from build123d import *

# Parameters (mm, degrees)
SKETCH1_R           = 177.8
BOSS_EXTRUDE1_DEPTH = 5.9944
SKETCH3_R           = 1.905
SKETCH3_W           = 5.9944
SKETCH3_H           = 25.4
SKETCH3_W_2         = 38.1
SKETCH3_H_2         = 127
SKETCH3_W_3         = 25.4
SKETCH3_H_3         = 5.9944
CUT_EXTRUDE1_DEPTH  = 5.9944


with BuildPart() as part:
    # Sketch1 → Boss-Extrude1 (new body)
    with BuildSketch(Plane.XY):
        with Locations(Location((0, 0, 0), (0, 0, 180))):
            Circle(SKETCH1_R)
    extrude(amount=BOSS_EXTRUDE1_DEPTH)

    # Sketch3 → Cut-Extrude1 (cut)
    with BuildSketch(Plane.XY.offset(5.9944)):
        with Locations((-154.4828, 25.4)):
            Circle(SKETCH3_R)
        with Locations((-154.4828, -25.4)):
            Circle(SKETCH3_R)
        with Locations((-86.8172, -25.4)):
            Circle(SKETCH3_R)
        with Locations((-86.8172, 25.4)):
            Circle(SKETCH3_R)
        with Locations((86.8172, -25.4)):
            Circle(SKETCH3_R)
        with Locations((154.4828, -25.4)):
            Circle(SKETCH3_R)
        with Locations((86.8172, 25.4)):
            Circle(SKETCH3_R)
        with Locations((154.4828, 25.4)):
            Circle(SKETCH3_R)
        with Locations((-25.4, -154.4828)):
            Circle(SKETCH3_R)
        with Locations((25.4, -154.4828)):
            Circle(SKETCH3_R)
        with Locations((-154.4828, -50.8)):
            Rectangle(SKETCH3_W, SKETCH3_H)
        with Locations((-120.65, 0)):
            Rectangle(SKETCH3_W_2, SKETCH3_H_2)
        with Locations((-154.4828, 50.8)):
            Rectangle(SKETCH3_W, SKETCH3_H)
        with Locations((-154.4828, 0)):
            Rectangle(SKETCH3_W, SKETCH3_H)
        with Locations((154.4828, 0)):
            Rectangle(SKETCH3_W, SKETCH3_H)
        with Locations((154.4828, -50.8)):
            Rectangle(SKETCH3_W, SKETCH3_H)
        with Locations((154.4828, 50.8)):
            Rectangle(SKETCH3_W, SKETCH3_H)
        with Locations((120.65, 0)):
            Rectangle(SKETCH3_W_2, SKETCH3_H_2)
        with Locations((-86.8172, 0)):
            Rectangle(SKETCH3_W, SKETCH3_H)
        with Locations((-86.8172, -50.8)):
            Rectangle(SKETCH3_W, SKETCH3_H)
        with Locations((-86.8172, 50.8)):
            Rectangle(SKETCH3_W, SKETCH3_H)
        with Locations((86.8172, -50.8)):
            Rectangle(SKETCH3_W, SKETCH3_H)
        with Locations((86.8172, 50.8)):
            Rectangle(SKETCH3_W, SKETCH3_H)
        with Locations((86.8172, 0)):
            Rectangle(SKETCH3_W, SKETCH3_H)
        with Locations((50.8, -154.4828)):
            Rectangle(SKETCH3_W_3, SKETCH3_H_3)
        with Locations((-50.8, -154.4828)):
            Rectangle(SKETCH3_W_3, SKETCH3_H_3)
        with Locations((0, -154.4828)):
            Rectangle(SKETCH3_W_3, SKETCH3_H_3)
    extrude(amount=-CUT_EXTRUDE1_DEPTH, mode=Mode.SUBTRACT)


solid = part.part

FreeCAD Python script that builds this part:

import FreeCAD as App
import Part
import Sketcher

V = App.Vector
Q = App.Units.Quantity

doc = App.newDocument("Part")
body = doc.addObject("PartDesign::Body", "Body")

# Sketch on XY plane
sketch1 = doc.addObject("Sketcher::SketchObject", "Sketch")
body.addObject(sketch1)
sketch1.AttachmentSupport = (doc.XY_Plane, [""])
sketch1.MapMode = "FlatFace"
sketch1.addGeometry(Part.Circle(V(0, 0, 0), V(0, 0, 1), 177.8), False)
sketch1.addConstraint([
    Sketcher.Constraint("Coincident", 0, 3, -1, 1),
    Sketcher.Constraint("Diameter", 0, Q("14 in")),
])
pad1 = doc.addObject("PartDesign::Pad", "Pad")
body.addObject(pad1)
pad1.Profile = sketch1
pad1.Length = Q("0.236 in")

# Sketch on XY plane
sketch2 = doc.addObject("Sketcher::SketchObject", "Sketch001")
body.addObject(sketch2)
sketch2.AttachmentSupport = (doc.XY_Plane, [""])
sketch2.MapMode = "FlatFace"
sketch2.AttachmentOffset = App.Placement(V(0, 0, 0.236 * 25.4), App.Rotation())
sketch2.addGeometry([
    Part.Circle(V(-154.4828, 25.4, 0), V(0, 0, 1), 1.905),  # 0
    Part.Circle(V(-154.4828, -25.4, 0), V(0, 0, 1), 1.905),  # 1
    Part.Circle(V(-86.8172, -25.4, 0), V(0, 0, 1), 1.905),  # 2
    Part.Circle(V(-86.8172, 25.4, 0), V(0, 0, 1), 1.905),  # 3
    Part.Circle(V(86.8172, -25.4, 0), V(0, 0, 1), 1.905),  # 4
    Part.Circle(V(154.4828, -25.4, 0), V(0, 0, 1), 1.905),  # 5
    Part.Circle(V(86.8172, 25.4, 0), V(0, 0, 1), 1.905),  # 6
    Part.Circle(V(154.4828, 25.4, 0), V(0, 0, 1), 1.905),  # 7
    Part.Circle(V(-25.4, -154.4828, 0), V(0, 0, 1), 1.905),  # 8
    Part.Circle(V(25.4, -154.4828, 0), V(0, 0, 1), 1.905),  # 9
    Part.LineSegment(V(-157.48, -38.1, 0), V(-157.48, -63.5, 0)),  # 10
    Part.LineSegment(V(-157.48, -63.5, 0), V(-151.4856, -63.5, 0)),  # 11
    Part.LineSegment(V(-151.4856, -63.5, 0), V(-151.4856, -38.1, 0)),  # 12
    Part.LineSegment(V(-151.4856, -38.1, 0), V(-157.48, -38.1, 0)),  # 13
    Part.LineSegment(V(-139.7, 63.5, 0), V(-139.7, -63.5, 0)),  # 14
    Part.LineSegment(V(-139.7, -63.5, 0), V(-101.6, -63.5, 0)),  # 15
    Part.LineSegment(V(-101.6, -63.5, 0), V(-101.6, 63.5, 0)),  # 16
    Part.LineSegment(V(-101.6, 63.5, 0), V(-139.7, 63.5, 0)),  # 17
    Part.LineSegment(V(-157.48, 63.5, 0), V(-157.48, 38.1, 0)),  # 18
    Part.LineSegment(V(-157.48, 38.1, 0), V(-151.4856, 38.1, 0)),  # 19
    Part.LineSegment(V(-151.4856, 38.1, 0), V(-151.4856, 63.5, 0)),  # 20
    Part.LineSegment(V(-151.4856, 63.5, 0), V(-157.48, 63.5, 0)),  # 21
    Part.LineSegment(V(-157.48, 12.7, 0), V(-157.48, -12.7, 0)),  # 22
    Part.LineSegment(V(-157.48, -12.7, 0), V(-151.4856, -12.7, 0)),  # 23
    Part.LineSegment(V(-151.4856, -12.7, 0), V(-151.4856, 12.7, 0)),  # 24
    Part.LineSegment(V(-151.4856, 12.7, 0), V(-157.48, 12.7, 0)),  # 25
    Part.LineSegment(V(151.4856, 12.7, 0), V(151.4856, -12.7, 0)),  # 26
    Part.LineSegment(V(151.4856, -12.7, 0), V(157.48, -12.7, 0)),  # 27
    Part.LineSegment(V(157.48, -12.7, 0), V(157.48, 12.7, 0)),  # 28
    Part.LineSegment(V(157.48, 12.7, 0), V(151.4856, 12.7, 0)),  # 29
    Part.LineSegment(V(151.4856, -38.1, 0), V(151.4856, -63.5, 0)),  # 30
    Part.LineSegment(V(151.4856, -63.5, 0), V(157.48, -63.5, 0)),  # 31
    Part.LineSegment(V(157.48, -63.5, 0), V(157.48, -38.1, 0)),  # 32
    Part.LineSegment(V(157.48, -38.1, 0), V(151.4856, -38.1, 0)),  # 33
    Part.LineSegment(V(151.4856, 63.5, 0), V(151.4856, 38.1, 0)),  # 34
    Part.LineSegment(V(151.4856, 38.1, 0), V(157.48, 38.1, 0)),  # 35
    Part.LineSegment(V(157.48, 38.1, 0), V(157.48, 63.5, 0)),  # 36
    Part.LineSegment(V(157.48, 63.5, 0), V(151.4856, 63.5, 0)),  # 37
    Part.LineSegment(V(101.6, 63.5, 0), V(101.6, -63.5, 0)),  # 38
    Part.LineSegment(V(101.6, -63.5, 0), V(139.7, -63.5, 0)),  # 39
    Part.LineSegment(V(139.7, -63.5, 0), V(139.7, 63.5, 0)),  # 40
    Part.LineSegment(V(139.7, 63.5, 0), V(101.6, 63.5, 0)),  # 41
    Part.LineSegment(V(-89.8144, 12.7, 0), V(-89.8144, -12.7, 0)),  # 42
    Part.LineSegment(V(-89.8144, -12.7, 0), V(-83.82, -12.7, 0)),  # 43
    Part.LineSegment(V(-83.82, -12.7, 0), V(-83.82, 12.7, 0)),  # 44
    Part.LineSegment(V(-83.82, 12.7, 0), V(-89.8144, 12.7, 0)),  # 45
    Part.LineSegment(V(-89.8144, -38.1, 0), V(-89.8144, -63.5, 0)),  # 46
    Part.LineSegment(V(-89.8144, -63.5, 0), V(-83.82, -63.5, 0)),  # 47
    Part.LineSegment(V(-83.82, -63.5, 0), V(-83.82, -38.1, 0)),  # 48
    Part.LineSegment(V(-83.82, -38.1, 0), V(-89.8144, -38.1, 0)),  # 49
    Part.LineSegment(V(-89.8144, 63.5, 0), V(-89.8144, 38.1, 0)),  # 50
    Part.LineSegment(V(-89.8144, 38.1, 0), V(-83.82, 38.1, 0)),  # 51
    Part.LineSegment(V(-83.82, 38.1, 0), V(-83.82, 63.5, 0)),  # 52
    Part.LineSegment(V(-83.82, 63.5, 0), V(-89.8144, 63.5, 0)),  # 53
    Part.LineSegment(V(83.82, -38.1, 0), V(83.82, -63.5, 0)),  # 54
    Part.LineSegment(V(83.82, -63.5, 0), V(89.8144, -63.5, 0)),  # 55
    Part.LineSegment(V(89.8144, -63.5, 0), V(89.8144, -38.1, 0)),  # 56
    Part.LineSegment(V(89.8144, -38.1, 0), V(83.82, -38.1, 0)),  # 57
    Part.LineSegment(V(83.82, 63.5, 0), V(83.82, 38.1, 0)),  # 58
    Part.LineSegment(V(83.82, 38.1, 0), V(89.8144, 38.1, 0)),  # 59
    Part.LineSegment(V(89.8144, 38.1, 0), V(89.8144, 63.5, 0)),  # 60
    Part.LineSegment(V(89.8144, 63.5, 0), V(83.82, 63.5, 0)),  # 61
    Part.LineSegment(V(83.82, 12.7, 0), V(83.82, -12.7, 0)),  # 62
    Part.LineSegment(V(83.82, -12.7, 0), V(89.8144, -12.7, 0)),  # 63
    Part.LineSegment(V(89.8144, -12.7, 0), V(89.8144, 12.7, 0)),  # 64
    Part.LineSegment(V(89.8144, 12.7, 0), V(83.82, 12.7, 0)),  # 65
    Part.LineSegment(V(38.1, -151.4856, 0), V(38.1, -157.48, 0)),  # 66
    Part.LineSegment(V(38.1, -157.48, 0), V(63.5, -157.48, 0)),  # 67
    Part.LineSegment(V(63.5, -157.48, 0), V(63.5, -151.4856, 0)),  # 68
    Part.LineSegment(V(63.5, -151.4856, 0), V(38.1, -151.4856, 0)),  # 69
    Part.LineSegment(V(-63.5, -151.4856, 0), V(-63.5, -157.48, 0)),  # 70
    Part.LineSegment(V(-63.5, -157.48, 0), V(-38.1, -157.48, 0)),  # 71
    Part.LineSegment(V(-38.1, -157.48, 0), V(-38.1, -151.4856, 0)),  # 72
    Part.LineSegment(V(-38.1, -151.4856, 0), V(-63.5, -151.4856, 0)),  # 73
    Part.LineSegment(V(-12.7, -151.4856, 0), V(-12.7, -157.48, 0)),  # 74
    Part.LineSegment(V(-12.7, -157.48, 0), V(12.7, -157.48, 0)),  # 75
    Part.LineSegment(V(12.7, -157.48, 0), V(12.7, -151.4856, 0)),  # 76
    Part.LineSegment(V(12.7, -151.4856, 0), V(-12.7, -151.4856, 0)),  # 77
], False)
sketch2.addConstraint([
    Sketcher.Constraint("Coincident", 10, 2, 11, 1),
    Sketcher.Constraint("Coincident", 11, 2, 12, 1),
    Sketcher.Constraint("Coincident", 12, 2, 13, 1),
    Sketcher.Constraint("Coincident", 13, 2, 10, 1),
    Sketcher.Constraint("Coincident", 14, 2, 15, 1),
    Sketcher.Constraint("Coincident", 15, 2, 16, 1),
    Sketcher.Constraint("Coincident", 16, 2, 17, 1),
    Sketcher.Constraint("Coincident", 17, 2, 14, 1),
    Sketcher.Constraint("Coincident", 18, 2, 19, 1),
    Sketcher.Constraint("Coincident", 19, 2, 20, 1),
    Sketcher.Constraint("Coincident", 20, 2, 21, 1),
    Sketcher.Constraint("Coincident", 21, 2, 18, 1),
    Sketcher.Constraint("Coincident", 22, 2, 23, 1),
    Sketcher.Constraint("Coincident", 23, 2, 24, 1),
    Sketcher.Constraint("Coincident", 24, 2, 25, 1),
    Sketcher.Constraint("Coincident", 25, 2, 22, 1),
    Sketcher.Constraint("Coincident", 26, 2, 27, 1),
    Sketcher.Constraint("Coincident", 27, 2, 28, 1),
    Sketcher.Constraint("Coincident", 28, 2, 29, 1),
    Sketcher.Constraint("Coincident", 29, 2, 26, 1),
    Sketcher.Constraint("Coincident", 30, 2, 31, 1),
    Sketcher.Constraint("Coincident", 31, 2, 32, 1),
    Sketcher.Constraint("Coincident", 32, 2, 33, 1),
    Sketcher.Constraint("Coincident", 33, 2, 30, 1),
    Sketcher.Constraint("Coincident", 34, 2, 35, 1),
    Sketcher.Constraint("Coincident", 35, 2, 36, 1),
    Sketcher.Constraint("Coincident", 36, 2, 37, 1),
    Sketcher.Constraint("Coincident", 37, 2, 34, 1),
    Sketcher.Constraint("Coincident", 38, 2, 39, 1),
    Sketcher.Constraint("Coincident", 39, 2, 40, 1),
    Sketcher.Constraint("Coincident", 40, 2, 41, 1),
    Sketcher.Constraint("Coincident", 41, 2, 38, 1),
    Sketcher.Constraint("Coincident", 42, 2, 43, 1),
    Sketcher.Constraint("Coincident", 43, 2, 44, 1),
    Sketcher.Constraint("Coincident", 44, 2, 45, 1),
    Sketcher.Constraint("Coincident", 45, 2, 42, 1),
    Sketcher.Constraint("Coincident", 46, 2, 47, 1),
    Sketcher.Constraint("Coincident", 47, 2, 48, 1),
    Sketcher.Constraint("Coincident", 48, 2, 49, 1),
    Sketcher.Constraint("Coincident", 49, 2, 46, 1),
    Sketcher.Constraint("Coincident", 50, 2, 51, 1),
    Sketcher.Constraint("Coincident", 51, 2, 52, 1),
    Sketcher.Constraint("Coincident", 52, 2, 53, 1),
    Sketcher.Constraint("Coincident", 53, 2, 50, 1),
    Sketcher.Constraint("Coincident", 54, 2, 55, 1),
    Sketcher.Constraint("Coincident", 55, 2, 56, 1),
    Sketcher.Constraint("Coincident", 56, 2, 57, 1),
    Sketcher.Constraint("Coincident", 57, 2, 54, 1),
    Sketcher.Constraint("Coincident", 58, 2, 59, 1),
    Sketcher.Constraint("Coincident", 59, 2, 60, 1),
    Sketcher.Constraint("Coincident", 60, 2, 61, 1),
    Sketcher.Constraint("Coincident", 61, 2, 58, 1),
    Sketcher.Constraint("Coincident", 62, 2, 63, 1),
    Sketcher.Constraint("Coincident", 63, 2, 64, 1),
    Sketcher.Constraint("Coincident", 64, 2, 65, 1),
    Sketcher.Constraint("Coincident", 65, 2, 62, 1),
    Sketcher.Constraint("Coincident", 66, 2, 67, 1),
    Sketcher.Constraint("Coincident", 67, 2, 68, 1),
    Sketcher.Constraint("Coincident", 68, 2, 69, 1),
    Sketcher.Constraint("Coincident", 69, 2, 66, 1),
    Sketcher.Constraint("Coincident", 70, 2, 71, 1),
    Sketcher.Constraint("Coincident", 71, 2, 72, 1),
    Sketcher.Constraint("Coincident", 72, 2, 73, 1),
    Sketcher.Constraint("Coincident", 73, 2, 70, 1),
    Sketcher.Constraint("Coincident", 74, 2, 75, 1),
    Sketcher.Constraint("Coincident", 75, 2, 76, 1),
    Sketcher.Constraint("Coincident", 76, 2, 77, 1),
    Sketcher.Constraint("Coincident", 77, 2, 74, 1),
    Sketcher.Constraint("Vertical", 10),
    Sketcher.Constraint("Horizontal", 11),
    Sketcher.Constraint("Vertical", 12),
    Sketcher.Constraint("Horizontal", 13),
    Sketcher.Constraint("Vertical", 14),
    Sketcher.Constraint("Horizontal", 15),
    Sketcher.Constraint("Vertical", 16),
    Sketcher.Constraint("Horizontal", 17),
    Sketcher.Constraint("Vertical", 18),
    Sketcher.Constraint("Horizontal", 19),
    Sketcher.Constraint("Vertical", 20),
    Sketcher.Constraint("Horizontal", 21),
    Sketcher.Constraint("Vertical", 22),
    Sketcher.Constraint("Horizontal", 23),
    Sketcher.Constraint("Vertical", 24),
    Sketcher.Constraint("Horizontal", 25),
    Sketcher.Constraint("Vertical", 26),
    Sketcher.Constraint("Horizontal", 27),
    Sketcher.Constraint("Vertical", 28),
    Sketcher.Constraint("Horizontal", 29),
    Sketcher.Constraint("Vertical", 30),
    Sketcher.Constraint("Horizontal", 31),
    Sketcher.Constraint("Vertical", 32),
    Sketcher.Constraint("Horizontal", 33),
    Sketcher.Constraint("Vertical", 34),
    Sketcher.Constraint("Horizontal", 35),
    Sketcher.Constraint("Vertical", 36),
    Sketcher.Constraint("Horizontal", 37),
    Sketcher.Constraint("Vertical", 38),
    Sketcher.Constraint("Horizontal", 39),
    Sketcher.Constraint("Vertical", 40),
    Sketcher.Constraint("Horizontal", 41),
    Sketcher.Constraint("Vertical", 42),
    Sketcher.Constraint("Horizontal", 43),
    Sketcher.Constraint("Vertical", 44),
    Sketcher.Constraint("Horizontal", 45),
    Sketcher.Constraint("Vertical", 46),
    Sketcher.Constraint("Horizontal", 47),
    Sketcher.Constraint("Vertical", 48),
    Sketcher.Constraint("Horizontal", 49),
    Sketcher.Constraint("Vertical", 50),
    Sketcher.Constraint("Horizontal", 51),
    Sketcher.Constraint("Vertical", 52),
    Sketcher.Constraint("Horizontal", 53),
    Sketcher.Constraint("Vertical", 54),
    Sketcher.Constraint("Horizontal", 55),
    Sketcher.Constraint("Vertical", 56),
    Sketcher.Constraint("Horizontal", 57),
    Sketcher.Constraint("Vertical", 58),
    Sketcher.Constraint("Horizontal", 59),
    Sketcher.Constraint("Vertical", 60),
    Sketcher.Constraint("Horizontal", 61),
    Sketcher.Constraint("Vertical", 62),
    Sketcher.Constraint("Horizontal", 63),
    Sketcher.Constraint("Vertical", 64),
    Sketcher.Constraint("Horizontal", 65),
    Sketcher.Constraint("Vertical", 66),
    Sketcher.Constraint("Horizontal", 67),
    Sketcher.Constraint("Vertical", 68),
    Sketcher.Constraint("Horizontal", 69),
    Sketcher.Constraint("Vertical", 70),
    Sketcher.Constraint("Horizontal", 71),
    Sketcher.Constraint("Vertical", 72),
    Sketcher.Constraint("Horizontal", 73),
    Sketcher.Constraint("Vertical", 74),
    Sketcher.Constraint("Horizontal", 75),
    Sketcher.Constraint("Vertical", 76),
    Sketcher.Constraint("Horizontal", 77),
    Sketcher.Constraint("Equal", 0, 1),
    Sketcher.Constraint("Equal", 1, 2),
    Sketcher.Constraint("Equal", 2, 3),
    Sketcher.Constraint("Equal", 3, 4),
    Sketcher.Constraint("Equal", 4, 5),
    Sketcher.Constraint("Equal", 5, 6),
    Sketcher.Constraint("Equal", 6, 7),
    Sketcher.Constraint("Equal", 7, 8),
    Sketcher.Constraint("Equal", 8, 9),
    Sketcher.Constraint("Symmetric", 3, 3, 4, 3, -1, 1),
    Sketcher.Constraint("Symmetric", 0, 3, 5, 3, -1, 1),
    Sketcher.Constraint("Symmetric", 2, 3, 6, 3, -1, 1),
    Sketcher.Constraint("Symmetric", 1, 3, 7, 3, -1, 1),
    Sketcher.Constraint("Symmetric", 24, 2, 26, 2, -1, 1),
    Sketcher.Constraint("Symmetric", 22, 2, 28, 2, -1, 1),
    Sketcher.Constraint("Symmetric", 20, 2, 30, 2, -1, 1),
    Sketcher.Constraint("Symmetric", 18, 2, 32, 2, -1, 1),
    Sketcher.Constraint("Symmetric", 12, 2, 34, 2, -1, 1),
    Sketcher.Constraint("Symmetric", 10, 2, 36, 2, -1, 1),
    Sketcher.Constraint("Symmetric", 16, 2, 38, 2, -1, 1),
    Sketcher.Constraint("Symmetric", 14, 2, 40, 2, -1, 1),
    Sketcher.Constraint("Symmetric", 52, 2, 54, 2, -1, 1),
    Sketcher.Constraint("Symmetric", 50, 2, 56, 2, -1, 1),
    Sketcher.Constraint("Symmetric", 48, 2, 58, 2, -1, 1),
    Sketcher.Constraint("Symmetric", 46, 2, 60, 2, -1, 1),
    Sketcher.Constraint("Symmetric", 44, 2, 62, 2, -1, 1),
    Sketcher.Constraint("Symmetric", 42, 2, 64, 2, -1, 1),
    Sketcher.Constraint("Symmetric", 2, 3, 4, 3, -2),
    Sketcher.Constraint("Symmetric", 1, 3, 5, 3, -2),
    Sketcher.Constraint("Symmetric", 8, 3, 9, 3, -2),
    Sketcher.Constraint("Symmetric", 11, 2, 30, 2, -2),
    Sketcher.Constraint("Symmetric", 13, 2, 32, 2, -2),
    Sketcher.Constraint("Symmetric", 47, 2, 54, 2, -2),
    Sketcher.Constraint("Symmetric", 49, 2, 56, 2, -2),
    Sketcher.Constraint("Symmetric", 67, 2, 70, 2, -2),
    Sketcher.Constraint("Symmetric", 69, 2, 72, 2, -2),
    Sketcher.Constraint("Horizontal", 1, 3, 2, 3),
    Sketcher.Constraint("Horizontal", 11, 2, 14, 2),
    Sketcher.Constraint("Horizontal", 17, 2, 20, 2),
    Sketcher.Constraint("Horizontal", 23, 2, 26, 2),
    Sketcher.Constraint("Horizontal", 27, 2, 42, 2),
    Sketcher.Constraint("Horizontal", 29, 2, 44, 2),
    Sketcher.Constraint("Horizontal", 39, 2, 46, 2),
    Sketcher.Constraint("Horizontal", 33, 2, 48, 2),
    Sketcher.Constraint("Horizontal", 71, 2, 74, 2),
    Sketcher.Constraint("Horizontal", 73, 2, 76, 2),
    Sketcher.Constraint("Vertical", 21, 2, 22, 2),
    Sketcher.Constraint("Vertical", 20, 2, 23, 2),
    Sketcher.Constraint("Vertical", 45, 2, 46, 2),
    Sketcher.Constraint("Vertical", 44, 2, 47, 2),
    Sketcher.Constraint("Equal", 37, 43),
    Sketcher.Constraint("Equal", 73, 75),
    Sketcher.Constraint("Equal", 77, 10),
    Sketcher.Constraint("Equal", 20, 22),
    Sketcher.Constraint("Equal", 65, 66),
    Sketcher.Constraint("Diameter", 0, Q("0.15 in")),
    Sketcher.Constraint("DistanceX", 67, 1, 67, 2, Q("1 in")),
    Sketcher.Constraint("DistanceY", 14, 2, 14, 1, Q("5 in")),
    Sketcher.Constraint("DistanceX", 15, 1, 15, 2, Q("1.5 in")),
    Sketcher.Constraint("DistanceY", -1, 1, 0, 3, Q("1 in")),
    Sketcher.Constraint("DistanceX", 8, 3, -1, 1, Q("1 in")),
    Sketcher.Constraint("DistanceX", 15, 2, -1, 1, Q("4 in")),
    Sketcher.Constraint("DistanceX", 10, 2, -1, 1, Q("6.2 in")),
    Sketcher.Constraint("DistanceX", 43, 2, -1, 1, Q("3.3 in")),
    Sketcher.Constraint("DistanceX", -1, 1, 66, 2, Q("1.5 in")),
    Sketcher.Constraint("DistanceY", 66, 2, -1, 1, Q("6.2 in")),
    Sketcher.Constraint("DistanceX", 74, 2, -1, 1, Q("0.5 in")),
    Sketcher.Constraint("DistanceX", 11, 1, 11, 2, Q("0.236 in")),
    Sketcher.Constraint("DistanceX", 0, 3, -1, 1, Q("6.082 in")),
    Sketcher.Constraint("DistanceX", 2, 3, -1, 1, Q("3.418 in")),
    Sketcher.Constraint("DistanceY", 8, 3, -1, 1, Q("6.082 in")),
])
pocket1 = doc.addObject("PartDesign::Pocket", "Pocket")
body.addObject(pocket1)
pocket1.Profile = sketch2
pocket1.Length = Q("0.236 in")

doc.recompute()
